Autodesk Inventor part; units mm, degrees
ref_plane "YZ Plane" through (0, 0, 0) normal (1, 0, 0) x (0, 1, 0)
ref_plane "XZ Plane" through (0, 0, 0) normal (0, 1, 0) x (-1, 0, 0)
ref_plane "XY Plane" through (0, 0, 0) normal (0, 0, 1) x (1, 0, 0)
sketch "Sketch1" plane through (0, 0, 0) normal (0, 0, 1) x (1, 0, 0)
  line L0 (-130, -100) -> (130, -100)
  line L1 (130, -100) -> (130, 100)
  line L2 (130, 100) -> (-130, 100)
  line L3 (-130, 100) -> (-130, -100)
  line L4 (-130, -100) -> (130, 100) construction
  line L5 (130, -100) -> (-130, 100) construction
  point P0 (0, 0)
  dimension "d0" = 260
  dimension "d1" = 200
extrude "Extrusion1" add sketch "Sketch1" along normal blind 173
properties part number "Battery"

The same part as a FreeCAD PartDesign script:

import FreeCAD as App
import Part
import Sketcher
from FreeCAD import Vector

doc = App.newDocument("Part")
body = doc.addObject("PartDesign::Body", "Body")

sketch1 = body.newObject("Sketcher::SketchObject", "Sketch")
sketch1.AttachmentSupport = (doc.getObject("XY_Plane"), [""])
sketch1.MapMode = "FlatFace"
sketch1.addGeometry([
    Part.LineSegment(Vector(-130, 100, 0), Vector(-130, -100, 0)),
    Part.LineSegment(Vector(-130, -100, 0), Vector(130, -100, 0)),
    Part.LineSegment(Vector(130, -100, 0), Vector(130, 100, 0)),
    Part.LineSegment(Vector(130, 100, 0), Vector(-130, 100, 0)),
], False)
sketch1.addConstraint([
    Sketcher.Constraint("Coincident", 0, 2, 1, 1),
    Sketcher.Constraint("Coincident", 1, 2, 2, 1),
    Sketcher.Constraint("Coincident", 2, 2, 3, 1),
    Sketcher.Constraint("Coincident", 3, 2, 0, 1),
    Sketcher.Constraint("Vertical", 0),
    Sketcher.Constraint("Horizontal", 1),
    Sketcher.Constraint("Vertical", 2),
    Sketcher.Constraint("Horizontal", 3),
    Sketcher.Constraint("Symmetric", 0, 2, 2, 2, -1, 1),
    Sketcher.Constraint("DistanceX", 1, 1, 1, 2, 260.0),
    Sketcher.Constraint("DistanceY", 0, 2, 0, 1, 200.0),
])
pad1 = body.newObject("PartDesign::Pad", "Pad")
pad1.Profile = sketch1
pad1.Length = 173

doc.recompute()
